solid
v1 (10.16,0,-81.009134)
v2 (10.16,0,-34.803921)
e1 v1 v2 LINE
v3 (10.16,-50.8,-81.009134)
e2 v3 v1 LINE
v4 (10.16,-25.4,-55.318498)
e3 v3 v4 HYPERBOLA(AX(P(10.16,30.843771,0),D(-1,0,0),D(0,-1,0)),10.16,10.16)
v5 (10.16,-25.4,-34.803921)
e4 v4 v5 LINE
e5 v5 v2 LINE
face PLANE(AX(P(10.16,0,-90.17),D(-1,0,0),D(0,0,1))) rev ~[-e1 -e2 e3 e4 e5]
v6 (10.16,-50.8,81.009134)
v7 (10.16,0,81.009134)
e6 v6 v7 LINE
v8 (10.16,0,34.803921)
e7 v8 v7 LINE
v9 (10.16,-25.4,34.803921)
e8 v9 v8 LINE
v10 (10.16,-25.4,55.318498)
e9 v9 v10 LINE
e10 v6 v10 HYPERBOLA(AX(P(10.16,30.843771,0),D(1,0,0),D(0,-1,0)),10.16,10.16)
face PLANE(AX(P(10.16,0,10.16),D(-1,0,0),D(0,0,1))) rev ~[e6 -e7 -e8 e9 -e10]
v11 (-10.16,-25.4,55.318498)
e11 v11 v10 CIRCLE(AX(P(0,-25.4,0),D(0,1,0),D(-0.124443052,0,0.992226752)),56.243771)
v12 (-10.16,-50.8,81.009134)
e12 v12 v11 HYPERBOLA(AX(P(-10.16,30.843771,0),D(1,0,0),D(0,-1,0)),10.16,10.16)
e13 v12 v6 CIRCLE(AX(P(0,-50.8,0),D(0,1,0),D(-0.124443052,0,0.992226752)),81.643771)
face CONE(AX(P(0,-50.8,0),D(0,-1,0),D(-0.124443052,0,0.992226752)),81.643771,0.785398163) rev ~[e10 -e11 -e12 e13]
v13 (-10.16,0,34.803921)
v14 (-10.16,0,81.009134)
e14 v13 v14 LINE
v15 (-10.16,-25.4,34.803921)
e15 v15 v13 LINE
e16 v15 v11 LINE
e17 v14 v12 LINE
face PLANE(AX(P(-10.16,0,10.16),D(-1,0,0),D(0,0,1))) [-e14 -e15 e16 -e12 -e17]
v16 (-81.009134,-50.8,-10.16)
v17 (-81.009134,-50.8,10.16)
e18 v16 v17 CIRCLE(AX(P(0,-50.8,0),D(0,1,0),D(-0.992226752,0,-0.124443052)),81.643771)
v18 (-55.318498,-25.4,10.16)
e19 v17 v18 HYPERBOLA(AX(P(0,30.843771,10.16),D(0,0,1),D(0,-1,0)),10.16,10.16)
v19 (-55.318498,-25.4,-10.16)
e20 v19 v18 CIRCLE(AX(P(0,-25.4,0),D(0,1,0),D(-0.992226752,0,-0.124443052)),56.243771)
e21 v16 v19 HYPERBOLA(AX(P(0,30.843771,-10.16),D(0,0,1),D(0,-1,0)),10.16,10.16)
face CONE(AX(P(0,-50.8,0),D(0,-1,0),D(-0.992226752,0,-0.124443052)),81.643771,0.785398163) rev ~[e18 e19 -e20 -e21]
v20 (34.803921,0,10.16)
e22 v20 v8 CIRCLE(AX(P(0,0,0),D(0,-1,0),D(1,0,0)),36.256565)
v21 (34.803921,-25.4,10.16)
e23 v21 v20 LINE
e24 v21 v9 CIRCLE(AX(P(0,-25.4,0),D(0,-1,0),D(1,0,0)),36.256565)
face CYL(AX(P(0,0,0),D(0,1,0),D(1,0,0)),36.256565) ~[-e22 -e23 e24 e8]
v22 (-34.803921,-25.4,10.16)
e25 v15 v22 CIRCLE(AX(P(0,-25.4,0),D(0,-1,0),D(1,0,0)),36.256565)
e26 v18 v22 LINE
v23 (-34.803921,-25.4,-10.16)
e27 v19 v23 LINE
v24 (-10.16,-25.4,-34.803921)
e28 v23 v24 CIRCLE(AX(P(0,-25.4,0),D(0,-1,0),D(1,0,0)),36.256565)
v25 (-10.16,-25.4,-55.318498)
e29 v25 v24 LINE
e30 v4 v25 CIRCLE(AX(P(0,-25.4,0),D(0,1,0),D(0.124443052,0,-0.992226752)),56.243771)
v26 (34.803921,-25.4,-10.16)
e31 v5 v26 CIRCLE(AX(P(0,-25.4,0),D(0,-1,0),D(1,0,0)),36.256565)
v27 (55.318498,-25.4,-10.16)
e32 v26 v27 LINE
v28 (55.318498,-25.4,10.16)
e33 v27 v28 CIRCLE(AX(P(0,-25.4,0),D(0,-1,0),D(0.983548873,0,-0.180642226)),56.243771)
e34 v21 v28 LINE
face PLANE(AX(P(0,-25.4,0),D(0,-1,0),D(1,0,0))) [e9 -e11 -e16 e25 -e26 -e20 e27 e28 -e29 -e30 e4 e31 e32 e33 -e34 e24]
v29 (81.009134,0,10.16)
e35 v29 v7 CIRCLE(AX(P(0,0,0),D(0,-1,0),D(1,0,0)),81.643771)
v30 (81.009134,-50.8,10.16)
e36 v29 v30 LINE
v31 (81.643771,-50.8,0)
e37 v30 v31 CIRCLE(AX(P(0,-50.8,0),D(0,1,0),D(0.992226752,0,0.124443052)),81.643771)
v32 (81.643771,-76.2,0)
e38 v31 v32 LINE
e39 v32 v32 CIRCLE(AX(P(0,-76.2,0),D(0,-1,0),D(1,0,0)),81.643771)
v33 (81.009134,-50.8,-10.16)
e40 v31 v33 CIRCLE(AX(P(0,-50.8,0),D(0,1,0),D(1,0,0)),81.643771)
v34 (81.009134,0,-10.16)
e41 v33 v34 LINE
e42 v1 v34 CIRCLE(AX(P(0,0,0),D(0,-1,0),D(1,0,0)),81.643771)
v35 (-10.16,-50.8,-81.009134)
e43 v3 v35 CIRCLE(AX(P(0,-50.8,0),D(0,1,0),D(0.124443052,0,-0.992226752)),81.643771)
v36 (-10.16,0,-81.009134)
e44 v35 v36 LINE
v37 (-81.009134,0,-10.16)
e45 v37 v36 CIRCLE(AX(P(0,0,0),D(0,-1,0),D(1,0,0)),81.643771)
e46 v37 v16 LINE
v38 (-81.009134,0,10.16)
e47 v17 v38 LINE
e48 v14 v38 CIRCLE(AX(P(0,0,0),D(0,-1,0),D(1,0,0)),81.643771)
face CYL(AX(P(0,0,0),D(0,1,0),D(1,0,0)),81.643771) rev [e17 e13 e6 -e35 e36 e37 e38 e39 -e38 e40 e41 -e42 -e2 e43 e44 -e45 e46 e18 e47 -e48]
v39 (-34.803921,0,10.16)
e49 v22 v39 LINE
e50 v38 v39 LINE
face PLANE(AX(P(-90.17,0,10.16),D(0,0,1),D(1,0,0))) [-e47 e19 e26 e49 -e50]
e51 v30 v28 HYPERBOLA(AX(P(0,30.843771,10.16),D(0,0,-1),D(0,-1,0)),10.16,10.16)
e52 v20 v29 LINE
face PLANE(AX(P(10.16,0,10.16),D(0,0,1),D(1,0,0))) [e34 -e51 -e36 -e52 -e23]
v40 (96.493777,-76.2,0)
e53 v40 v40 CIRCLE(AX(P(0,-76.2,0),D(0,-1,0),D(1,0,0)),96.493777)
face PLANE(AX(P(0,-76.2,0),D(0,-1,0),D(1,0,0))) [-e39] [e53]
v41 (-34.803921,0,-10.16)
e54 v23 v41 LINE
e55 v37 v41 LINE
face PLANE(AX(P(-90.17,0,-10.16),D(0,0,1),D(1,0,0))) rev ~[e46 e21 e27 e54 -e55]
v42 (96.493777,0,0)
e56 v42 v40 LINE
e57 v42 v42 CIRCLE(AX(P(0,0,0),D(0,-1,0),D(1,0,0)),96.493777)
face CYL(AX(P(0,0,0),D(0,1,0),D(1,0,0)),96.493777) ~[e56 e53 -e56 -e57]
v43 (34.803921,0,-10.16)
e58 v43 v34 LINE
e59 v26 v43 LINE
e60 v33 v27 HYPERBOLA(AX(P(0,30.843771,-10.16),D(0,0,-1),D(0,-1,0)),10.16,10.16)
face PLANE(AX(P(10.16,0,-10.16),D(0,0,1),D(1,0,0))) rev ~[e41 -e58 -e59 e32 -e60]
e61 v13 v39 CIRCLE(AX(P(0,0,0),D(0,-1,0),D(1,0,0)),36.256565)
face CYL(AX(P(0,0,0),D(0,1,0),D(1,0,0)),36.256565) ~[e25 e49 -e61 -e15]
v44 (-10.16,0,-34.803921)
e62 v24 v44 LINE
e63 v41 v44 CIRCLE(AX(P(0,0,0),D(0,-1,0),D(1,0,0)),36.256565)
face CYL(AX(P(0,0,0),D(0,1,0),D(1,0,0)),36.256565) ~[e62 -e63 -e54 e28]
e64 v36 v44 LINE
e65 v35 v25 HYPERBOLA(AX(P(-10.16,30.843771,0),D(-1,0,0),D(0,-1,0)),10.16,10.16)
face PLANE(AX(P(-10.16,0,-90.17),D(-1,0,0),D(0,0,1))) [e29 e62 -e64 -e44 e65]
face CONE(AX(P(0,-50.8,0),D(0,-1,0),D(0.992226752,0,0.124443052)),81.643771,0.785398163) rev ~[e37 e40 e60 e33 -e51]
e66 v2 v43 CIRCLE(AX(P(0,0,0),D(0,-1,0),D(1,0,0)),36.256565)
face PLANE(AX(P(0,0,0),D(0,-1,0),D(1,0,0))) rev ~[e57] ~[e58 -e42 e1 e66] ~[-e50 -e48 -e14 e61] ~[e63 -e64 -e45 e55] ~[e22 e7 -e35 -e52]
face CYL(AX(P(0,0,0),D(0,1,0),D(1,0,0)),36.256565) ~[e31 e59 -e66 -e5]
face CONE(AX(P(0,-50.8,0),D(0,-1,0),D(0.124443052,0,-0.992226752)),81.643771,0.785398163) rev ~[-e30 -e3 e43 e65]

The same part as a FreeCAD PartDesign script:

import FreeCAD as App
import Part
import Sketcher
Q = App.Units.Quantity


def edges_at(feature, points):
    """Names of the edges that pass closest to the given points."""
    edges = feature.Shape.Edges
    near = lambda p: min(range(len(edges)), key=lambda i: edges[i].distToShape(Part.Vertex(*p))[0])
    return sorted({f"Edge{near(p) + 1}" for p in points})

doc = App.newDocument("Part")
body = doc.addObject("PartDesign::Body", "Body")

# Sketch on XZ plane
sketch1 = body.newObject("Sketcher::SketchObject", "Sketch")
sketch1.AttachmentSupport = (doc.getObject("XZ_Plane"), [""])
sketch1.MapMode = "FlatFace"
sketch1.addGeometry([
    Part.Circle(App.Vector(0, 0, 0), App.Vector(0, 0, 1), 96),
    Part.Circle(App.Vector(0, 0, 0), App.Vector(0, 0, 1), 82),
], False)
sketch1.addConstraint([
    Sketcher.Constraint("Coincident", 0, 3, -1, 1),
    Sketcher.Constraint("Coincident", 1, 3, -1, 1),
    Sketcher.Constraint("Diameter", 1, Q("163.287542 mm")),
    Sketcher.Constraint("Diameter", 0, Q("192.987554 mm")),
])
pad1 = body.newObject("PartDesign::Pad", "Pad")
pad1.Profile = sketch1
pad1.Length = Q("3 in")

# Sketch on XZ plane
sketch2 = body.newObject("Sketcher::SketchObject", "Sketch001")
sketch2.AttachmentSupport = (doc.getObject("XZ_Plane"), [""])
sketch2.MapMode = "FlatFace"
sketch2.addGeometry([
    Part.LineSegment(App.Vector(-90, 10, 0), App.Vector(-90, -10, 0)),  # 0
    Part.LineSegment(App.Vector(-90, -10, 0), App.Vector(-10, -10, 0)),  # 1
    Part.LineSegment(App.Vector(-10, -10, 0), App.Vector(-10, 10, 0)),  # 2
    Part.LineSegment(App.Vector(-10, 10, 0), App.Vector(-90, 10, 0)),  # 3
    Part.LineSegment(App.Vector(-10, -10, 0), App.Vector(-10, -90, 0)),  # 4
    Part.LineSegment(App.Vector(-10, -90, 0), App.Vector(10, -90, 0)),  # 5
    Part.LineSegment(App.Vector(10, -90, 0), App.Vector(10, -10, 0)),  # 6
    Part.LineSegment(App.Vector(10, -10, 0), App.Vector(-10, -10, 0)),  # 7
    Part.LineSegment(App.Vector(10, 10, 0), App.Vector(10, -10, 0)),  # 8
    Part.LineSegment(App.Vector(10, -10, 0), App.Vector(90, -10, 0)),  # 9
    Part.LineSegment(App.Vector(90, -10, 0), App.Vector(90, 10, 0)),  # 10
    Part.LineSegment(App.Vector(90, 10, 0), App.Vector(10, 10, 0)),  # 11
    Part.LineSegment(App.Vector(-10, 90, 0), App.Vector(-10, 10, 0)),  # 12
    Part.LineSegment(App.Vector(-10, 10, 0), App.Vector(10, 10, 0)),  # 13
    Part.LineSegment(App.Vector(10, 10, 0), App.Vector(10, 90, 0)),  # 14
    Part.LineSegment(App.Vector(10, 90, 0), App.Vector(-10, 90, 0)),  # 15
], False)
sketch2.addConstraint([
    Sketcher.Constraint("Coincident", 0, 2, 1, 1),
    Sketcher.Constraint("Coincident", 1, 2, 2, 1),
    Sketcher.Constraint("Coincident", 2, 2, 3, 1),
    Sketcher.Constraint("Coincident", 3, 2, 0, 1),
    Sketcher.Constraint("Coincident", 4, 2, 5, 1),
    Sketcher.Constraint("Coincident", 5, 2, 6, 1),
    Sketcher.Constraint("Coincident", 6, 2, 7, 1),
    Sketcher.Constraint("Coincident", 7, 2, 4, 1),
    Sketcher.Constraint("Coincident", 8, 2, 9, 1),
    Sketcher.Constraint("Coincident", 9, 2, 10, 1),
    Sketcher.Constraint("Coincident", 10, 2, 11, 1),
    Sketcher.Constraint("Coincident", 11, 2, 8, 1),
    Sketcher.Constraint("Coincident", 12, 2, 13, 1),
    Sketcher.Constraint("Coincident", 13, 2, 14, 1),
    Sketcher.Constraint("Coincident", 14, 2, 15, 1),
    Sketcher.Constraint("Coincident", 15, 2, 12, 1),
    Sketcher.Constraint("Vertical", 0),
    Sketcher.Constraint("Horizontal", 1),
    Sketcher.Constraint("Vertical", 2),
    Sketcher.Constraint("Horizontal", 3),
    Sketcher.Constraint("Vertical", 4),
    Sketcher.Constraint("Horizontal", 5),
    Sketcher.Constraint("Vertical", 6),
    Sketcher.Constraint("Horizontal", 7),
    Sketcher.Constraint("Vertical", 8),
    Sketcher.Constraint("Horizontal", 9),
    Sketcher.Constraint("Vertical", 10),
    Sketcher.Constraint("Horizontal", 11),
    Sketcher.Constraint("Vertical", 12),
    Sketcher.Constraint("Horizontal", 13),
    Sketcher.Constraint("Vertical", 14),
    Sketcher.Constraint("Horizontal", 15),
    Sketcher.Constraint("Coincident", 7, 2, 1, 2),
    Sketcher.Constraint("Coincident", 8, 2, 6, 2),
    Sketcher.Constraint("Coincident", 12, 2, 2, 2),
    Sketcher.Constraint("Coincident", 13, 2, 11, 2),
    Sketcher.Constraint("Symmetric", 2, 2, 6, 2, -1, 1),
    Sketcher.Constraint("Equal", 3, 9),
    Sketcher.Constraint("Equal", 15, 0),
    Sketcher.Constraint("Equal", 11, 4),
    Sketcher.Constraint("Equal", 6, 12),
    Sketcher.Constraint("DistanceX", 5, 1, 5, 2, Q("0.8 in")),
    Sketcher.Constraint("DistanceX", 1, 1, 1, 2, Q("3.15 in")),
])
pad2 = body.newObject("PartDesign::Pad", "Pad001")
pad2.Profile = sketch2
pad2.Length = Q("1 in")

# Sketch on XZ plane
sketch3 = body.newObject("Sketcher::SketchObject", "Sketch002")
sketch3.AttachmentSupport = (doc.getObject("XZ_Plane"), [""])
sketch3.MapMode = "FlatFace"
sketch3.addGeometry(Part.Circle(App.Vector(0, 0, 0), App.Vector(0, 0, 1), 36), False)
sketch3.addConstraint([
    Sketcher.Constraint("Coincident", 0, 3, -1, 1),
    Sketcher.Constraint("Diameter", 0, Q("72.51313 mm")),
])
pad3 = body.newObject("PartDesign::Pad", "Pad002")
pad3.Profile = sketch3
pad3.Length = Q("1 in")
doc.recompute()

chamfer = body.newObject("PartDesign::Chamfer", "Chamfer")
chamfer.Base = (pad3, edges_at(pad3, [
    (81.485, -25.4, 5.09),
    (0, -25.4, 81.644),
    (-81.644, -25.4, 0),
    (0, -25.4, -81.644),
    (81.485, -25.4, -5.09),
]))
chamfer.Size = Q("1 in")

doc.recompute()
